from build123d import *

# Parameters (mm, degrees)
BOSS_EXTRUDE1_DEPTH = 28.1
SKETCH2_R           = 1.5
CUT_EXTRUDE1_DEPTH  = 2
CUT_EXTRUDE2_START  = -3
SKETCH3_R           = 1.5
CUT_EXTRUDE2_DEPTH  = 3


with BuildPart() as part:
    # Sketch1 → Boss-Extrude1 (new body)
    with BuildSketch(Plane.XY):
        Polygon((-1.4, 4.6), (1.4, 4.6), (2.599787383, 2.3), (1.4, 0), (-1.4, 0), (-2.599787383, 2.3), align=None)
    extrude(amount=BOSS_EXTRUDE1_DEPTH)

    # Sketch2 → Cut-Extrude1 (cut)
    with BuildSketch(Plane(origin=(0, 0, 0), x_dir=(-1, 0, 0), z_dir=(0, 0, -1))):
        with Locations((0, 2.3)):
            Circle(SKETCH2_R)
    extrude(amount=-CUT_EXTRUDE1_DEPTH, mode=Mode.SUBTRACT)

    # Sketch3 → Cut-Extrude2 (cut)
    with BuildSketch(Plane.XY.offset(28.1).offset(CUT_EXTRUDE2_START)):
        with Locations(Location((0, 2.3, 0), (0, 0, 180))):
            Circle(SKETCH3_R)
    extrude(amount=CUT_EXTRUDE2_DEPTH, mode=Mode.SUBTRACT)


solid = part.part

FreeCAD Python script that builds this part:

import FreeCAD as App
import Part
import Sketcher

V = App.Vector

doc = App.newDocument("Part")
params = doc.addObject("Spreadsheet::Sheet", "Params")
for row, (alias, value) in enumerate([
    ("sketch1_width", "2.8 mm"),
    ("pad1_length", "28.1 mm"),
    ("sketch2_diameter", "3 mm"),
    ("pocket1_length", "2 mm"),
    ("sketch3_diameter", "3 mm"),
    ("pocket2_length", "3 mm"),
], start=1):
    params.set(f"A{row}", alias)
    params.set(f"B{row}", "=" + value)
    params.setAlias(f"B{row}", alias)

body = doc.addObject("PartDesign::Body", "Body")

sketch1 = body.newObject("Sketcher::SketchObject", "Sketch")
sketch1.AttachmentSupport = (doc.getObject("XY_Plane"), [""])
sketch1.MapMode = "FlatFace"
sketch1.addGeometry([
    Part.LineSegment(V(1.4, 4.6, 0), V(-1.4, 4.6, 0)),
    Part.LineSegment(V(-1.4, 4.6, 0), V(-2.6, 2.3, 0)),
    Part.LineSegment(V(-2.6, 2.3, 0), V(-1.4, 0, 0)),
    Part.LineSegment(V(-1.4, 0, 0), V(1.4, 0, 0)),
    Part.LineSegment(V(1.4, 0, 0), V(2.6, 2.3, 0)),
    Part.LineSegment(V(2.6, 2.3, 0), V(1.4, 4.6, 0)),
], False)
sketch1.addConstraint([
    Sketcher.Constraint("Coincident", 0, 2, 1, 1),
    Sketcher.Constraint("Coincident", 1, 2, 2, 1),
    Sketcher.Constraint("Coincident", 2, 2, 3, 1),
    Sketcher.Constraint("Coincident", 3, 2, 4, 1),
    Sketcher.Constraint("Coincident", 4, 2, 5, 1),
    Sketcher.Constraint("Coincident", 5, 2, 0, 1),
    Sketcher.Constraint("Horizontal", 0),
    Sketcher.Constraint("Horizontal", 3),
    Sketcher.Constraint("Symmetric", 2, 2, 3, 2, -1, 1),
    Sketcher.Constraint("Symmetric", 1, 2, 4, 2, -2),
    Sketcher.Constraint("Parallel", 1, 4),
    Sketcher.Constraint("Parallel", 2, 5),
    Sketcher.Constraint("Vertical", 0, 2, 2, 2),
    Sketcher.Constraint("DistanceX", 0, 2, 0, 1, 2.8),
    Sketcher.Constraint("DistanceY", -1, 1, 0, 2, 4.6),
    Sketcher.Constraint("Distance", 1, 2.594126),
])
sketch1.setExpression("Constraints[13]", "Params.sketch1_width")
pad1 = body.newObject("PartDesign::Pad", "Pad")
pad1.Profile = sketch1
pad1.setExpression("Length", "Params.pad1_length")

sketch2 = body.newObject("Sketcher::SketchObject", "Sketch001")
sketch2.AttachmentSupport = (doc.getObject("XY_Plane"), [""])
sketch2.MapMode = "FlatFace"
sketch2.addGeometry(Part.Circle(V(0, 2.3, 0), V(0, 0, 1), 1.5), False)
sketch2.addConstraint([
    Sketcher.Constraint("PointOnObject", 0, 3, -2),
    Sketcher.Constraint("Diameter", 0, 3.0),
    Sketcher.Constraint("DistanceY", -1, 1, 0, 3, 2.3),
])
sketch2.setExpression("Constraints[1]", "Params.sketch2_diameter")
pocket1 = body.newObject("PartDesign::Pocket", "Pocket")
pocket1.Profile = sketch2
pocket1.setExpression("Length", "Params.pocket1_length")
pocket1.Reversed = True

sketch3 = body.newObject("Sketcher::SketchObject", "Sketch002")
sketch3.AttachmentSupport = (doc.getObject("XY_Plane"), [""])
sketch3.MapMode = "FlatFace"
sketch3.AttachmentOffset = App.Placement(V(0, 0, 25.1), App.Rotation())
sketch3.addGeometry(Part.Circle(V(0, 2.3, 0), V(0, 0, 1), 1.5), False)
sketch3.addConstraint([
    Sketcher.Constraint("PointOnObject", 0, 3, -2),
    Sketcher.Constraint("Diameter", 0, 3.0),
    Sketcher.Constraint("DistanceY", -1, 1, 0, 3, 2.3),
])
sketch3.setExpression("Constraints[1]", "Params.sketch3_diameter")
pocket2 = body.newObject("PartDesign::Pocket", "Pocket001")
pocket2.Profile = sketch3
pocket2.setExpression("Length", "Params.pocket2_length")
pocket2.Reversed = True

doc.recompute()
